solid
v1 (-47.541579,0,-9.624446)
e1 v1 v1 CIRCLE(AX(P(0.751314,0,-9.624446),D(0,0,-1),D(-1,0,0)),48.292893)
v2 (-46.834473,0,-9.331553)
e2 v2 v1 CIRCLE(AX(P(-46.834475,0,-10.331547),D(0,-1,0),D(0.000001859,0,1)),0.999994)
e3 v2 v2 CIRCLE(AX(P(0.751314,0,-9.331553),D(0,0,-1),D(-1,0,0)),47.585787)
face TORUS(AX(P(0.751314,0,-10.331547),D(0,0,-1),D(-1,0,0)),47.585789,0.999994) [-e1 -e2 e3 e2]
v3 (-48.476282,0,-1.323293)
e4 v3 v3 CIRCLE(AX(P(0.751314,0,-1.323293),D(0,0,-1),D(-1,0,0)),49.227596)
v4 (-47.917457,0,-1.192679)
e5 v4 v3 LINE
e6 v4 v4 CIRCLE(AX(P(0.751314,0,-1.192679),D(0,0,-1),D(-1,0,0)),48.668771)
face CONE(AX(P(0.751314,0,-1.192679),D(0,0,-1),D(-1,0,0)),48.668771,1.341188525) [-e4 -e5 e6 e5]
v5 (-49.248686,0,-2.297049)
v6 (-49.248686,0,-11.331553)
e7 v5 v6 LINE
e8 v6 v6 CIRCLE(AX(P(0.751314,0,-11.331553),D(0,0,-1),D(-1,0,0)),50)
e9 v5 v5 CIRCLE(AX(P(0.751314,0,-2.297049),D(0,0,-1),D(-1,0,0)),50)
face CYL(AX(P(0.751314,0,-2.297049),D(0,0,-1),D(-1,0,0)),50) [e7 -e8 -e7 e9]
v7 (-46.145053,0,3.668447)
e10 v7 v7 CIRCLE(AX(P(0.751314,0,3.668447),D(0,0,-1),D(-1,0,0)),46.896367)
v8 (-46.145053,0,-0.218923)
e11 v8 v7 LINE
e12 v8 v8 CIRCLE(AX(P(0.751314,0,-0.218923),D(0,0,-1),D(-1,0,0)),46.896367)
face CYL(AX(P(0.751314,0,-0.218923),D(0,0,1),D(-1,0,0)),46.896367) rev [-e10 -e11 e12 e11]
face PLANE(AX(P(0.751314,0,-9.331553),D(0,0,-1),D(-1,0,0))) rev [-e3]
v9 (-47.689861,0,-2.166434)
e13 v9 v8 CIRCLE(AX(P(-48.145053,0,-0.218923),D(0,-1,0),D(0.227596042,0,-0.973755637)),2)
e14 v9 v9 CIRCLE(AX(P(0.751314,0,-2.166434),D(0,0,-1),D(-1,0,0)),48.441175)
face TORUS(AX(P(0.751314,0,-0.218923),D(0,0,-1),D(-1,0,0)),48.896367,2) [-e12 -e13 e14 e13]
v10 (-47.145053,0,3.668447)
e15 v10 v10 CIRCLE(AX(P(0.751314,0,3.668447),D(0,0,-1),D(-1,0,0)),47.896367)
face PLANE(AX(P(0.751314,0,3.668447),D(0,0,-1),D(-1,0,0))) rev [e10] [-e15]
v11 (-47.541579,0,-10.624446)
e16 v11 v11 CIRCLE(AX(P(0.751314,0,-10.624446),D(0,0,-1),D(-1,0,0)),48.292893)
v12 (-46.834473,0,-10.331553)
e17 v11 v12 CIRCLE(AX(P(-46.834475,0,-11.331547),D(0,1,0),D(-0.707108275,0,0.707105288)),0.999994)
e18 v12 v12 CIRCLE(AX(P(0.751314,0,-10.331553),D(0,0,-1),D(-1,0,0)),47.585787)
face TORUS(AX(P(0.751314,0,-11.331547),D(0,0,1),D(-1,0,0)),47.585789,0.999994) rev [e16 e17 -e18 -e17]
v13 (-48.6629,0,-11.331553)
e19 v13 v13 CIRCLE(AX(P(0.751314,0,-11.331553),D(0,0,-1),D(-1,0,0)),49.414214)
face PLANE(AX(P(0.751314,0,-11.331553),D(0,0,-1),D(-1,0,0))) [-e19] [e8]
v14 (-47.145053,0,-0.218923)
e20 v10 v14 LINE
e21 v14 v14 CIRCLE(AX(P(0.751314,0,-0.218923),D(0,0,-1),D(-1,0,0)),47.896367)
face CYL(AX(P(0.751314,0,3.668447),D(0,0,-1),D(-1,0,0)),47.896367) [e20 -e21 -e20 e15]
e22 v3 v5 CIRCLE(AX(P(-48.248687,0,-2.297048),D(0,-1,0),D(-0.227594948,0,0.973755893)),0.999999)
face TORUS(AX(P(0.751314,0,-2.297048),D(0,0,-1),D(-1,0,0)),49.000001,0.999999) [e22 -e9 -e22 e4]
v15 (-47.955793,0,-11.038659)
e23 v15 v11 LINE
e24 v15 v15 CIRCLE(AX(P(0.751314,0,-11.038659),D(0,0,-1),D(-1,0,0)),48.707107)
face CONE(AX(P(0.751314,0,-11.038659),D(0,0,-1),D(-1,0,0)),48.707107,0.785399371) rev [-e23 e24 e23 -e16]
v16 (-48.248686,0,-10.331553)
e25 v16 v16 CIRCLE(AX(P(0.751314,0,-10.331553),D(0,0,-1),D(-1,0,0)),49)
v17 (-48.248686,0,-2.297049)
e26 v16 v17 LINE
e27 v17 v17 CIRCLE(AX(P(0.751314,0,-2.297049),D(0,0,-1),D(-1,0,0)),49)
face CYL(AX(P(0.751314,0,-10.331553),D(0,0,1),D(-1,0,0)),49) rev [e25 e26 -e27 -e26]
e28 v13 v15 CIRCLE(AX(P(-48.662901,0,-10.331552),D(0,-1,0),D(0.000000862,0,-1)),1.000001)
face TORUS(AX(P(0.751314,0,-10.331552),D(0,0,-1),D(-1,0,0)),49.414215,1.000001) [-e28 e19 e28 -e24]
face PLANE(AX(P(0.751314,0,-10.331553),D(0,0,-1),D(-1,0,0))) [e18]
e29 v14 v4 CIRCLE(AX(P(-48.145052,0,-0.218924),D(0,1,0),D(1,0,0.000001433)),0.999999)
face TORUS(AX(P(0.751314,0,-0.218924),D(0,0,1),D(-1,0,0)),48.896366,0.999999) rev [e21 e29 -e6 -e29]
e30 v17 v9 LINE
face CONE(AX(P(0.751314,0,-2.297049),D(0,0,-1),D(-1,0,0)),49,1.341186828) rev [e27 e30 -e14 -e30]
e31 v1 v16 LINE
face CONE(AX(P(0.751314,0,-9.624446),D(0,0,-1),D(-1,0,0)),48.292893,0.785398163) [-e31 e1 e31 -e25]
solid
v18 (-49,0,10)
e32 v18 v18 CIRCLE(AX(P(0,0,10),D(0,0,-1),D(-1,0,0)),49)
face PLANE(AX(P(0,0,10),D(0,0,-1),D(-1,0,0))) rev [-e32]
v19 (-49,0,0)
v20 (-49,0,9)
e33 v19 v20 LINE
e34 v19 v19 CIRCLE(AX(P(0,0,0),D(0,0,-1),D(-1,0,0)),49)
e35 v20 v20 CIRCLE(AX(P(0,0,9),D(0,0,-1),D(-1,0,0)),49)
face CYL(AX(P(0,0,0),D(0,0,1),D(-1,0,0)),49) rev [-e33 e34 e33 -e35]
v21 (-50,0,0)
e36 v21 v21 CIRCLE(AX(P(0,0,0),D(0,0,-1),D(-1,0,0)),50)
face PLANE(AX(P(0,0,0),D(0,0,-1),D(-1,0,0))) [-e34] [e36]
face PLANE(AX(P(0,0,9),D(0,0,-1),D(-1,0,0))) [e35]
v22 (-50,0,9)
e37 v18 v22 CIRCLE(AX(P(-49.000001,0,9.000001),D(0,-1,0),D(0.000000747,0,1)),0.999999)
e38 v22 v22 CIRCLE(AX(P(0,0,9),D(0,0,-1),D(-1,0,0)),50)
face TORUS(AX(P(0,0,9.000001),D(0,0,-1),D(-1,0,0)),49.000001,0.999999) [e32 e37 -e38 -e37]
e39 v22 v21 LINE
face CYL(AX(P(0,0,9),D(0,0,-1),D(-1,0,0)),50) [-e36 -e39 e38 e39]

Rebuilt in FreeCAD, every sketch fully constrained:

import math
import FreeCAD as App
import Part
import Sketcher
from FreeCAD import Vector
Q = App.Units.Quantity

doc = App.newDocument("Part")
body = doc.addObject("PartDesign::Body", "Body")

# Sketch on XZ plane
sketch1 = body.newObject("Sketcher::SketchObject", "Sketch")
sketch1.AttachmentSupport = (doc.getObject("XZ_Plane"), [""])
sketch1.MapMode = "FlatFace"
sketch1.addGeometry(Part.LineSegment(Vector(-50, 9, 0), Vector(-50, 0, 0)), False)
sketch1.addGeometry(Part.LineSegment(Vector(-50, 0, 0), Vector(-49, 0, 0)), False)
sketch1.addGeometry(Part.LineSegment(Vector(-49, 0, 0), Vector(-49, 9, 0)), False)
sketch1.addGeometry(Part.LineSegment(Vector(-49, 9, 0), Vector(0, 9, 0)), False)
sketch1.addGeometry(Part.LineSegment(Vector(0, 9, 0), Vector(0, 10, 0)), False)
sketch1.addGeometry(Part.LineSegment(Vector(0, 10, 0), Vector(-49, 10, 0)), False)
sketch1.addGeometry(Part.ArcOfCircle(Part.Circle(Vector(-49, 9, 0), Vector(0, 0, 1), 1), math.radians(90), math.radians(180)), False)
sketch1.addConstraint(Sketcher.Constraint("Coincident", 0, 2, 1, 1))
sketch1.addConstraint(Sketcher.Constraint("Coincident", 1, 2, 2, 1))
sketch1.addConstraint(Sketcher.Constraint("Coincident", 2, 2, 3, 1))
sketch1.addConstraint(Sketcher.Constraint("Coincident", 3, 2, 4, 1))
sketch1.addConstraint(Sketcher.Constraint("Coincident", 4, 2, 5, 1))
sketch1.addConstraint(Sketcher.Constraint("Tangent", 5, 2, 6, 1))
sketch1.addConstraint(Sketcher.Constraint("Tangent", 6, 2, 0, 1))
sketch1.addConstraint(Sketcher.Constraint("Vertical", 0))
sketch1.addConstraint(Sketcher.Constraint("Horizontal", 1))
sketch1.addConstraint(Sketcher.Constraint("Vertical", 2))
sketch1.addConstraint(Sketcher.Constraint("Horizontal", 3))
sketch1.addConstraint(Sketcher.Constraint("Vertical", 4))
sketch1.addConstraint(Sketcher.Constraint("Horizontal", 5))
sketch1.addConstraint(Sketcher.Constraint("Coincident", 2, 2, 6, 3))
sketch1.addConstraint(Sketcher.Constraint("PointOnObject", 0, 2, -1))
sketch1.addConstraint(Sketcher.Constraint("PointOnObject", 3, 2, -2))
sketch1.addConstraint(Sketcher.Constraint("Radius", 6, Q("0.999999 mm")))
sketch1.addConstraint(Sketcher.Constraint("DistanceX", 3, 1, 3, 2, Q("49 mm")))
sketch1.addConstraint(Sketcher.Constraint("DistanceY", 0, 2, 0, 1, Q("9 mm")))
revolution = body.newObject("PartDesign::Revolution", "Revolution")
revolution.Profile = sketch1
revolution.ReferenceAxis = (sketch1, ["V_Axis"])
revolution.Angle = 360
body2 = doc.addObject("PartDesign::Body", "Body001")

# Sketch on XZ plane
sketch2 = body2.newObject("Sketcher::SketchObject", "Sketch001")
sketch2.AttachmentSupport = (doc.getObject("XZ_Plane001"), [""])
sketch2.MapMode = "FlatFace"
sketch2.addGeometry(Part.LineSegment(Vector(-46.1, -0.2, 0), Vector(-46.1, 3.7, 0)), False)
sketch2.addGeometry(Part.LineSegment(Vector(-46.1, 3.7, 0), Vector(-47.1, 3.7, 0)), False)
sketch2.addGeometry(Part.LineSegment(Vector(-47.1, 3.7, 0), Vector(-47.1, -0.2, 0)), False)
sketch2.addGeometry(Part.ArcOfCircle(Part.Circle(Vector(-48.1, -0.2, 0), Vector(0, 0, 1), 1), math.radians(-77), math.radians(0)), False)
sketch2.addGeometry(Part.LineSegment(Vector(-47.9, -1.2, 0), Vector(-48.5, -1.3, 0)), False)
sketch2.addGeometry(Part.ArcOfCircle(Part.Circle(Vector(-48.2, -2.3, 0), Vector(0, 0, 1), 1), math.radians(103), math.radians(180)), False)
sketch2.addGeometry(Part.LineSegment(Vector(-49.2, -2.3, 0), Vector(-49.2, -11.3, 0)), False)
sketch2.addGeometry(Part.LineSegment(Vector(-49.2, -11.3, 0), Vector(-48.7, -11.3, 0)), False)
sketch2.addGeometry(Part.ArcOfCircle(Part.Circle(Vector(-48.7, -10.3, 0), Vector(0, 0, 1), 1), math.radians(-90), math.radians(-45)), False)
sketch2.addGeometry(Part.LineSegment(Vector(-48, -11, 0), Vector(-47.5, -10.6, 0)), False)
sketch2.addGeometry(Part.ArcOfCircle(Part.Circle(Vector(-46.8, -11.3, 0), Vector(0, 0, 1), 1), math.radians(90), math.radians(135)), False)
sketch2.addGeometry(Part.LineSegment(Vector(-46.8, -10.3, 0), Vector(0.8, -10.3, 0)), False)
sketch2.addGeometry(Part.LineSegment(Vector(0.8, -10.3, 0), Vector(0.8, -9.3, 0)), False)
sketch2.addGeometry(Part.LineSegment(Vector(0.8, -9.3, 0), Vector(-46.8, -9.3, 0)), False)
sketch2.addGeometry(Part.ArcOfCircle(Part.Circle(Vector(-46.8, -10.3, 0), Vector(0, 0, 1), 1), math.radians(90), math.radians(135)), False)
sketch2.addGeometry(Part.LineSegment(Vector(-47.5, -9.6, 0), Vector(-48.2, -10.3, 0)), False)
sketch2.addGeometry(Part.LineSegment(Vector(-48.2, -10.3, 0), Vector(-48.2, -2.3, 0)), False)
sketch2.addGeometry(Part.LineSegment(Vector(-48.2, -2.3, 0), Vector(-47.7, -2.2, 0)), False)
sketch2.addGeometry(Part.ArcOfCircle(Part.Circle(Vector(-48.1, -0.2, 0), Vector(0, 0, 1), 2), math.radians(-77), math.radians(0)), False)
sketch2.addGeometry(Part.LineSegment(Vector(0.8, 3.7, 0), Vector(0.8, -11.3, 0)), True)  # axis
sketch2.addConstraint(Sketcher.Constraint("Coincident", 0, 2, 1, 1))
sketch2.addConstraint(Sketcher.Constraint("Coincident", 1, 2, 2, 1))
sketch2.addConstraint(Sketcher.Constraint("Tangent", 2, 2, 3, 2))
sketch2.addConstraint(Sketcher.Constraint("Tangent", 3, 1, 4, 1))
sketch2.addConstraint(Sketcher.Constraint("Tangent", 4, 2, 5, 1))
sketch2.addConstraint(Sketcher.Constraint("Tangent", 5, 2, 6, 1))
sketch2.addConstraint(Sketcher.Constraint("Coincident", 6, 2, 7, 1))
sketch2.addConstraint(Sketcher.Constraint("Tangent", 7, 2, 8, 1))
sketch2.addConstraint(Sketcher.Constraint("Coincident", 8, 2, 9, 1))
sketch2.addConstraint(Sketcher.Constraint("Coincident", 9, 2, 10, 2))
sketch2.addConstraint(Sketcher.Constraint("Tangent", 10, 1, 11, 1))
sketch2.addConstraint(Sketcher.Constraint("Coincident", 11, 2, 12, 1))
sketch2.addConstraint(Sketcher.Constraint("Coincident", 12, 2, 13, 1))
sketch2.addConstraint(Sketcher.Constraint("Tangent", 13, 2, 14, 1))
sketch2.addConstraint(Sketcher.Constraint("Coincident", 14, 2, 15, 1))
sketch2.addConstraint(Sketcher.Constraint("Coincident", 15, 2, 16, 1))
sketch2.addConstraint(Sketcher.Constraint("Coincident", 16, 2, 17, 1))
sketch2.addConstraint(Sketcher.Constraint("Tangent", 17, 2, 18, 1))
sketch2.addConstraint(Sketcher.Constraint("Tangent", 18, 2, 0, 1))
sketch2.addConstraint(Sketcher.Constraint("Vertical", 0))
sketch2.addConstraint(Sketcher.Constraint("Horizontal", 1))
sketch2.addConstraint(Sketcher.Constraint("Vertical", 2))
sketch2.addConstraint(Sketcher.Constraint("Vertical", 6))
sketch2.addConstraint(Sketcher.Constraint("Horizontal", 7))
sketch2.addConstraint(Sketcher.Constraint("Horizontal", 11))
sketch2.addConstraint(Sketcher.Constraint("Vertical", 12))
sketch2.addConstraint(Sketcher.Constraint("Horizontal", 13))
sketch2.addConstraint(Sketcher.Constraint("Vertical", 16))
sketch2.addConstraint(Sketcher.Constraint("Vertical", 19))
sketch2.addConstraint(Sketcher.Constraint("Coincident", 18, 3, 3, 3))
sketch2.addConstraint(Sketcher.Constraint("Coincident", 10, 1, 14, 3))
sketch2.addConstraint(Sketcher.Constraint("Coincident", 16, 2, 5, 3))
sketch2.addConstraint(Sketcher.Constraint("Equal", 3, 5))
sketch2.addConstraint(Sketcher.Constraint("Equal", 10, 14))
sketch2.addConstraint(Sketcher.Constraint("Parallel", 9, 15))
sketch2.addConstraint(Sketcher.Constraint("Parallel", 4, 17))
sketch2.addConstraint(Sketcher.Constraint("Horizontal", 8, 3, 10, 1))
sketch2.addConstraint(Sketcher.Constraint("Horizontal", 11, 2, 15, 2))
sketch2.addConstraint(Sketcher.Constraint("Horizontal", 1, 2, 19, 1))
sketch2.addConstraint(Sketcher.Constraint("Horizontal", 7, 2, 19, 2))
sketch2.addConstraint(Sketcher.Constraint("Vertical", 9, 2, 14, 2))
sketch2.addConstraint(Sketcher.Constraint("Vertical", 12, 2, 19, 1))
sketch2.addConstraint(Sketcher.Constraint("Equal", 1, 12))
sketch2.addConstraint(Sketcher.Constraint("Radius", 3, Q("0.999999 mm")))
sketch2.addConstraint(Sketcher.Constraint("Radius", 8, Q("1.000001 mm")))
sketch2.addConstraint(Sketcher.Constraint("DistanceY", 19, 2, 19, 1, Q("15 mm")))
sketch2.addConstraint(Sketcher.Constraint("Angle", 15, Q("-135 deg")))
sketch2.addConstraint(Sketcher.Constraint("Distance", 15, Q("1 mm")))
sketch2.addConstraint(Sketcher.Constraint("DistanceY", 0, 1, 0, 2, Q("3.88737 mm")))
sketch2.addConstraint(Sketcher.Constraint("DistanceX", 8, 3, -1, 1, Q("48.662901 mm")))
sketch2.addConstraint(Sketcher.Constraint("DistanceY", 10, 3, 5, 3, Q("9.0345 mm")))
sketch2.addConstraint(Sketcher.Constraint("DistanceX", 11, 1, 11, 2, Q("47.585787 mm")))
sketch2.addConstraint(Sketcher.Constraint("DistanceX", 3, 3, -1, 1, Q("48.145052 mm")))
sketch2.addConstraint(Sketcher.Constraint("DistanceY", 3, 1, -1, 1, Q("1.192679 mm")))
sketch2.addConstraint(Sketcher.Constraint("DistanceY", 8, 2, -1, 1, Q("11.038659 mm")))
revolution2 = body2.newObject("PartDesign::Revolution", "Revolution001")
revolution2.Profile = sketch2
revolution2.ReferenceAxis = (sketch2, ["Axis0"])
revolution2.Angle = 360

doc.recompute()
